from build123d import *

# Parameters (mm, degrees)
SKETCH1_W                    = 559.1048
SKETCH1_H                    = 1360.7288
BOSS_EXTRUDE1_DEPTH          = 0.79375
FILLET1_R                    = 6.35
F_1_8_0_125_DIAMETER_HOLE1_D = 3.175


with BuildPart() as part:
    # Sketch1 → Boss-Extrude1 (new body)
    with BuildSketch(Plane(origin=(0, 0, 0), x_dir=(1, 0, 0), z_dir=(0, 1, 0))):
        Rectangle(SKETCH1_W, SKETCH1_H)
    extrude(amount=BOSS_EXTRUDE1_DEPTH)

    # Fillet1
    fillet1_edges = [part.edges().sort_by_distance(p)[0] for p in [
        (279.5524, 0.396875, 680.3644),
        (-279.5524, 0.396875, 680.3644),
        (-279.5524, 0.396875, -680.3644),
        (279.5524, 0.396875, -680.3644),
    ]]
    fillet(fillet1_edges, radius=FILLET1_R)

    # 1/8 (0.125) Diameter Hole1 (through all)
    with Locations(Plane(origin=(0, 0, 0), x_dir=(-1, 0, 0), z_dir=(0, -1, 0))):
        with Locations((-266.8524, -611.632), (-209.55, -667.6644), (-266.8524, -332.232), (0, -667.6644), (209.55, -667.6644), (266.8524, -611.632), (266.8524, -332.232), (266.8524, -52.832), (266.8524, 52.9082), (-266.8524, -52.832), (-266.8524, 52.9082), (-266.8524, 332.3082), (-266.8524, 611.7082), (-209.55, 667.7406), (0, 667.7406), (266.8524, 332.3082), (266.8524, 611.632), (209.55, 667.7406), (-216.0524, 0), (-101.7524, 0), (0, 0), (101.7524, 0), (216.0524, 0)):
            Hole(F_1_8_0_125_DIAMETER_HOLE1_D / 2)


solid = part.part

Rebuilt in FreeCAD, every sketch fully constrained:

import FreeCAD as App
import Part
import Sketcher

V = App.Vector
Q = App.Units.Quantity


def edges_at(feature, points):
    """Names of the edges that pass closest to the given points."""
    edges = feature.Shape.Edges
    near = lambda p: min(range(len(edges)), key=lambda i: edges[i].distToShape(Part.Vertex(*p))[0])
    return sorted({f"Edge{near(p) + 1}" for p in points})


def add_polygon(sketch, points):
    """Adds a closed chain of lines whose ends are joined by coincident constraints."""
    first, n = sketch.GeometryCount, len(points)
    for a, b in zip(points, points[1:] + points[:1]):
        sketch.addGeometry(Part.LineSegment(App.Vector(*a, 0), App.Vector(*b, 0)), False)
    for i in range(n):
        sketch.addConstraint(Sketcher.Constraint("Coincident", first + i, 2, first + (i + 1) % n, 1))

doc = App.newDocument("Part")
body = doc.addObject("PartDesign::Body", "Body")

sketch1 = body.newObject("Sketcher::SketchObject", "Sketch")
sketch1.AttachmentSupport = (doc.getObject("XZ_Plane"), [""])
sketch1.MapMode = "FlatFace"
add_polygon(sketch1, [(-279.5524, -680.3644), (-279.5524, 680.3644), (279.5524, 680.3644), (279.5524, -680.3644)])
sketch1.addConstraint(Sketcher.Constraint("Vertical", 0))
sketch1.addConstraint(Sketcher.Constraint("Horizontal", 1))
sketch1.addConstraint(Sketcher.Constraint("Vertical", 2))
sketch1.addConstraint(Sketcher.Constraint("Horizontal", 3))
sketch1.addConstraint(Sketcher.Constraint("Symmetric", 0, 2, 2, 2, -1, 1))
sketch1.addConstraint(Sketcher.Constraint("DistanceX", 1, 1, 1, 2, Q("22.012 in")))
sketch1.addConstraint(Sketcher.Constraint("DistanceY", 0, 1, 0, 2, Q("53.572 in")))
pad1 = body.newObject("PartDesign::Pad", "Pad")
pad1.Profile = sketch1
pad1.Length = Q("0.03125 in")
pad1.Reversed = True
doc.recompute()

fillet = body.newObject("PartDesign::Fillet", "Fillet")
fillet.Base = (pad1, edges_at(pad1, [
    (279.552, 0.397, 680.364),
    (-279.552, 0.397, 680.364),
    (-279.552, 0.397, -680.364),
    (279.552, 0.397, -680.364),
]))
fillet.Radius = Q("0.25 in")

sketch2 = body.newObject("Sketcher::SketchObject", "Sketch001")
sketch2.AttachmentSupport = (doc.getObject("XZ_Plane"), [""])
sketch2.MapMode = "FlatFace"
sketch2.addGeometry(Part.Circle(V(266.8524, 611.632, 0), V(0, 0, 1), 1.5875), False)
sketch2.addGeometry(Part.Circle(V(209.55, 667.6644, 0), V(0, 0, 1), 1.5875), False)
sketch2.addGeometry(Part.Circle(V(266.8524, 332.232, 0), V(0, 0, 1), 1.5875), False)
sketch2.addGeometry(Part.Circle(V(0, 667.6644, 0), V(0, 0, 1), 1.5875), False)
sketch2.addGeometry(Part.Circle(V(-209.55, 667.6644, 0), V(0, 0, 1), 1.5875), False)
sketch2.addGeometry(Part.Circle(V(-266.8524, 611.632, 0), V(0, 0, 1), 1.5875), False)
sketch2.addGeometry(Part.Circle(V(-266.8524, 332.232, 0), V(0, 0, 1), 1.5875), False)
sketch2.addGeometry(Part.Circle(V(-266.8524, 52.832, 0), V(0, 0, 1), 1.5875), False)
sketch2.addGeometry(Part.Circle(V(-266.8524, -52.9082, 0), V(0, 0, 1), 1.5875), False)
sketch2.addGeometry(Part.Circle(V(266.8524, 52.832, 0), V(0, 0, 1), 1.5875), False)
sketch2.addGeometry(Part.Circle(V(266.8524, -52.9082, 0), V(0, 0, 1), 1.5875), False)
sketch2.addGeometry(Part.Circle(V(266.8524, -332.3082, 0), V(0, 0, 1), 1.5875), False)
sketch2.addGeometry(Part.Circle(V(266.8524, -611.7082, 0), V(0, 0, 1), 1.5875), False)
sketch2.addGeometry(Part.Circle(V(209.55, -667.7406, 0), V(0, 0, 1), 1.5875), False)
sketch2.addGeometry(Part.Circle(V(0, -667.7406, 0), V(0, 0, 1), 1.5875), False)
sketch2.addGeometry(Part.Circle(V(-266.8524, -332.3082, 0), V(0, 0, 1), 1.5875), False)
sketch2.addGeometry(Part.Circle(V(-266.8524, -611.632, 0), V(0, 0, 1), 1.5875), False)
sketch2.addGeometry(Part.Circle(V(-209.55, -667.7406, 0), V(0, 0, 1), 1.5875), False)
sketch2.addGeometry(Part.Circle(V(216.0524, 0, 0), V(0, 0, 1), 1.5875), False)
sketch2.addGeometry(Part.Circle(V(101.7524, 0, 0), V(0, 0, 1), 1.5875), False)
sketch2.addGeometry(Part.Circle(V(0, 0, 0), V(0, 0, 1), 1.5875), False)
sketch2.addGeometry(Part.Circle(V(-101.7524, 0, 0), V(0, 0, 1), 1.5875), False)
sketch2.addGeometry(Part.Circle(V(-216.0524, 0, 0), V(0, 0, 1), 1.5875), False)
sketch2.addConstraint(Sketcher.Constraint("Coincident", 20, 3, -1, 1))
sketch2.addConstraint(Sketcher.Constraint("Equal", 0, 1))
sketch2.addConstraint(Sketcher.Constraint("Equal", 1, 2))
sketch2.addConstraint(Sketcher.Constraint("Equal", 2, 3))
sketch2.addConstraint(Sketcher.Constraint("Equal", 3, 4))
sketch2.addConstraint(Sketcher.Constraint("Equal", 4, 5))
sketch2.addConstraint(Sketcher.Constraint("Equal", 5, 6))
sketch2.addConstraint(Sketcher.Constraint("Equal", 6, 7))
sketch2.addConstraint(Sketcher.Constraint("Equal", 7, 8))
sketch2.addConstraint(Sketcher.Constraint("Equal", 8, 9))
sketch2.addConstraint(Sketcher.Constraint("Equal", 9, 10))
sketch2.addConstraint(Sketcher.Constraint("Equal", 10, 11))
sketch2.addConstraint(Sketcher.Constraint("Equal", 11, 12))
sketch2.addConstraint(Sketcher.Constraint("Equal", 12, 13))
sketch2.addConstraint(Sketcher.Constraint("Equal", 13, 14))
sketch2.addConstraint(Sketcher.Constraint("Equal", 14, 15))
sketch2.addConstraint(Sketcher.Constraint("Equal", 15, 16))
sketch2.addConstraint(Sketcher.Constraint("Equal", 16, 17))
sketch2.addConstraint(Sketcher.Constraint("Equal", 17, 18))
sketch2.addConstraint(Sketcher.Constraint("Equal", 18, 19))
sketch2.addConstraint(Sketcher.Constraint("Equal", 19, 20))
sketch2.addConstraint(Sketcher.Constraint("Equal", 20, 21))
sketch2.addConstraint(Sketcher.Constraint("Equal", 21, 22))
sketch2.addConstraint(Sketcher.Constraint("Symmetric", 0, 3, 16, 3, -1, 1))
sketch2.addConstraint(Sketcher.Constraint("Symmetric", 19, 3, 21, 3, -1, 1))
sketch2.addConstraint(Sketcher.Constraint("Symmetric", 18, 3, 22, 3, -1, 1))
sketch2.addConstraint(Sketcher.Constraint("Symmetric", 1, 3, 4, 3, -2))
sketch2.addConstraint(Sketcher.Constraint("Symmetric", 0, 3, 5, 3, -2))
sketch2.addConstraint(Sketcher.Constraint("Symmetric", 2, 3, 6, 3, -2))
sketch2.addConstraint(Sketcher.Constraint("Symmetric", 7, 3, 9, 3, -2))
sketch2.addConstraint(Sketcher.Constraint("Symmetric", 8, 3, 10, 3, -2))
sketch2.addConstraint(Sketcher.Constraint("Symmetric", 11, 3, 15, 3, -2))
sketch2.addConstraint(Sketcher.Constraint("Symmetric", 13, 3, 17, 3, -2))
sketch2.addConstraint(Sketcher.Constraint("PointOnObject", 3, 3, -2))
sketch2.addConstraint(Sketcher.Constraint("PointOnObject", 14, 3, -2))
sketch2.addConstraint(Sketcher.Constraint("PointOnObject", 18, 3, -1))
sketch2.addConstraint(Sketcher.Constraint("PointOnObject", 19, 3, -1))
sketch2.addConstraint(Sketcher.Constraint("Horizontal", 1, 3, 3, 3))
sketch2.addConstraint(Sketcher.Constraint("Horizontal", 13, 3, 14, 3))
sketch2.addConstraint(Sketcher.Constraint("Vertical", 0, 3, 2, 3))
sketch2.addConstraint(Sketcher.Constraint("Vertical", 6, 3, 7, 3))
sketch2.addConstraint(Sketcher.Constraint("Vertical", 7, 3, 8, 3))
sketch2.addConstraint(Sketcher.Constraint("Vertical", 10, 3, 11, 3))
sketch2.addConstraint(Sketcher.Constraint("Vertical", 11, 3, 12, 3))
sketch2.addConstraint(Sketcher.Constraint("Vertical", 1, 3, 13, 3))
sketch2.addConstraint(Sketcher.Constraint("Diameter", 0, Q("0.125 in")))
sketch2.addConstraint(Sketcher.Constraint("DistanceY", 2, 3, 0, 3, Q("11 in")))
sketch2.addConstraint(Sketcher.Constraint("DistanceY", 7, 3, 6, 3, Q("11 in")))
sketch2.addConstraint(Sketcher.Constraint("DistanceY", 11, 3, 10, 3, Q("11 in")))
sketch2.addConstraint(Sketcher.Constraint("DistanceY", 12, 3, 11, 3, Q("11 in")))
sketch2.addConstraint(Sketcher.Constraint("DistanceX", 18, 3, 9, 3, Q("2 in")))
sketch2.addConstraint(Sketcher.Constraint("DistanceX", 4, 3, 1, 3, Q("16.5 in")))
sketch2.addConstraint(Sketcher.Constraint("DistanceX", 19, 3, 18, 3, Q("4.5 in")))
sketch2.addConstraint(Sketcher.Constraint("DistanceY", -1, 1, 0, 3, Q("24.08 in")))
sketch2.addConstraint(Sketcher.Constraint("DistanceX", -1, 1, 0, 3, Q("10.506 in")))
sketch2.addConstraint(Sketcher.Constraint("DistanceY", -1, 1, 1, 3, Q("26.286 in")))
sketch2.addConstraint(Sketcher.Constraint("DistanceY", 8, 3, -1, 1, Q("2.083 in")))
sketch2.addConstraint(Sketcher.Constraint("DistanceY", 13, 3, -1, 1, Q("26.289 in")))
doc.recompute()
hole = body.newObject("PartDesign::Hole", "Hole")
hole.Profile = sketch2
hole.ThreadType = "None"
hole.Diameter = Q("0.125 in")
hole.DepthType = "ThroughAll"

doc.recompute()
